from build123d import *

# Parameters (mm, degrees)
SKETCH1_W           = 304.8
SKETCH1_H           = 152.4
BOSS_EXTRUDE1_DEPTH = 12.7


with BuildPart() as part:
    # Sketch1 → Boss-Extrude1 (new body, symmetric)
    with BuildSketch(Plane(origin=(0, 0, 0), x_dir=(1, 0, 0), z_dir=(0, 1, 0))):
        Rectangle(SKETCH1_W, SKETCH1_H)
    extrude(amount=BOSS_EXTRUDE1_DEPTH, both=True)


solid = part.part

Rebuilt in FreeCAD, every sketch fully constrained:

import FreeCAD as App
import Part
import Sketcher
Q = App.Units.Quantity


def add_polygon(sketch, points):
    """Adds a closed chain of lines whose ends are joined by coincident constraints."""
    first, n = sketch.GeometryCount, len(points)
    for a, b in zip(points, points[1:] + points[:1]):
        sketch.addGeometry(Part.LineSegment(App.Vector(*a, 0), App.Vector(*b, 0)), False)
    for i in range(n):
        sketch.addConstraint(Sketcher.Constraint("Coincident", first + i, 2, first + (i + 1) % n, 1))

doc = App.newDocument("Part")
params = doc.addObject("Spreadsheet::Sheet", "Params")
for row, (alias, value) in enumerate([
    ("sketch1_width", "12 in"),
    ("sketch1_height", "6 in"),
    ("pad1_length", "1 in"),
], start=1):
    params.set(f"A{row}", alias)
    params.set(f"B{row}", "=" + value)
    params.setAlias(f"B{row}", alias)

body = doc.addObject("PartDesign::Body", "Body")

# Sketch on XZ plane
sketch1 = body.newObject("Sketcher::SketchObject", "Sketch")
sketch1.AttachmentSupport = (doc.getObject("XZ_Plane"), [""])
sketch1.MapMode = "FlatFace"
add_polygon(sketch1, [(-152, -76), (-152, 76), (152, 76), (152, -76)])  # lines 0-3
sketch1.addConstraint([
    Sketcher.Constraint("Vertical", 0),
    Sketcher.Constraint("Horizontal", 1),
    Sketcher.Constraint("Vertical", 2),
    Sketcher.Constraint("Horizontal", 3),
    Sketcher.Constraint("Symmetric", 0, 2, 2, 2, -1, 1),
    Sketcher.Constraint("DistanceX", 1, 1, 1, 2, Q("12 in")),
    Sketcher.Constraint("DistanceY", 0, 1, 0, 2, Q("6 in")),
])
sketch1.setExpression("Constraints[9]", "Params.sketch1_width")
sketch1.setExpression("Constraints[10]", "Params.sketch1_height")
pad1 = body.newObject("PartDesign::Pad", "Pad")
pad1.Profile = sketch1
pad1.setExpression("Length", "Params.pad1_length")
pad1.Midplane = True

doc.recompute()
